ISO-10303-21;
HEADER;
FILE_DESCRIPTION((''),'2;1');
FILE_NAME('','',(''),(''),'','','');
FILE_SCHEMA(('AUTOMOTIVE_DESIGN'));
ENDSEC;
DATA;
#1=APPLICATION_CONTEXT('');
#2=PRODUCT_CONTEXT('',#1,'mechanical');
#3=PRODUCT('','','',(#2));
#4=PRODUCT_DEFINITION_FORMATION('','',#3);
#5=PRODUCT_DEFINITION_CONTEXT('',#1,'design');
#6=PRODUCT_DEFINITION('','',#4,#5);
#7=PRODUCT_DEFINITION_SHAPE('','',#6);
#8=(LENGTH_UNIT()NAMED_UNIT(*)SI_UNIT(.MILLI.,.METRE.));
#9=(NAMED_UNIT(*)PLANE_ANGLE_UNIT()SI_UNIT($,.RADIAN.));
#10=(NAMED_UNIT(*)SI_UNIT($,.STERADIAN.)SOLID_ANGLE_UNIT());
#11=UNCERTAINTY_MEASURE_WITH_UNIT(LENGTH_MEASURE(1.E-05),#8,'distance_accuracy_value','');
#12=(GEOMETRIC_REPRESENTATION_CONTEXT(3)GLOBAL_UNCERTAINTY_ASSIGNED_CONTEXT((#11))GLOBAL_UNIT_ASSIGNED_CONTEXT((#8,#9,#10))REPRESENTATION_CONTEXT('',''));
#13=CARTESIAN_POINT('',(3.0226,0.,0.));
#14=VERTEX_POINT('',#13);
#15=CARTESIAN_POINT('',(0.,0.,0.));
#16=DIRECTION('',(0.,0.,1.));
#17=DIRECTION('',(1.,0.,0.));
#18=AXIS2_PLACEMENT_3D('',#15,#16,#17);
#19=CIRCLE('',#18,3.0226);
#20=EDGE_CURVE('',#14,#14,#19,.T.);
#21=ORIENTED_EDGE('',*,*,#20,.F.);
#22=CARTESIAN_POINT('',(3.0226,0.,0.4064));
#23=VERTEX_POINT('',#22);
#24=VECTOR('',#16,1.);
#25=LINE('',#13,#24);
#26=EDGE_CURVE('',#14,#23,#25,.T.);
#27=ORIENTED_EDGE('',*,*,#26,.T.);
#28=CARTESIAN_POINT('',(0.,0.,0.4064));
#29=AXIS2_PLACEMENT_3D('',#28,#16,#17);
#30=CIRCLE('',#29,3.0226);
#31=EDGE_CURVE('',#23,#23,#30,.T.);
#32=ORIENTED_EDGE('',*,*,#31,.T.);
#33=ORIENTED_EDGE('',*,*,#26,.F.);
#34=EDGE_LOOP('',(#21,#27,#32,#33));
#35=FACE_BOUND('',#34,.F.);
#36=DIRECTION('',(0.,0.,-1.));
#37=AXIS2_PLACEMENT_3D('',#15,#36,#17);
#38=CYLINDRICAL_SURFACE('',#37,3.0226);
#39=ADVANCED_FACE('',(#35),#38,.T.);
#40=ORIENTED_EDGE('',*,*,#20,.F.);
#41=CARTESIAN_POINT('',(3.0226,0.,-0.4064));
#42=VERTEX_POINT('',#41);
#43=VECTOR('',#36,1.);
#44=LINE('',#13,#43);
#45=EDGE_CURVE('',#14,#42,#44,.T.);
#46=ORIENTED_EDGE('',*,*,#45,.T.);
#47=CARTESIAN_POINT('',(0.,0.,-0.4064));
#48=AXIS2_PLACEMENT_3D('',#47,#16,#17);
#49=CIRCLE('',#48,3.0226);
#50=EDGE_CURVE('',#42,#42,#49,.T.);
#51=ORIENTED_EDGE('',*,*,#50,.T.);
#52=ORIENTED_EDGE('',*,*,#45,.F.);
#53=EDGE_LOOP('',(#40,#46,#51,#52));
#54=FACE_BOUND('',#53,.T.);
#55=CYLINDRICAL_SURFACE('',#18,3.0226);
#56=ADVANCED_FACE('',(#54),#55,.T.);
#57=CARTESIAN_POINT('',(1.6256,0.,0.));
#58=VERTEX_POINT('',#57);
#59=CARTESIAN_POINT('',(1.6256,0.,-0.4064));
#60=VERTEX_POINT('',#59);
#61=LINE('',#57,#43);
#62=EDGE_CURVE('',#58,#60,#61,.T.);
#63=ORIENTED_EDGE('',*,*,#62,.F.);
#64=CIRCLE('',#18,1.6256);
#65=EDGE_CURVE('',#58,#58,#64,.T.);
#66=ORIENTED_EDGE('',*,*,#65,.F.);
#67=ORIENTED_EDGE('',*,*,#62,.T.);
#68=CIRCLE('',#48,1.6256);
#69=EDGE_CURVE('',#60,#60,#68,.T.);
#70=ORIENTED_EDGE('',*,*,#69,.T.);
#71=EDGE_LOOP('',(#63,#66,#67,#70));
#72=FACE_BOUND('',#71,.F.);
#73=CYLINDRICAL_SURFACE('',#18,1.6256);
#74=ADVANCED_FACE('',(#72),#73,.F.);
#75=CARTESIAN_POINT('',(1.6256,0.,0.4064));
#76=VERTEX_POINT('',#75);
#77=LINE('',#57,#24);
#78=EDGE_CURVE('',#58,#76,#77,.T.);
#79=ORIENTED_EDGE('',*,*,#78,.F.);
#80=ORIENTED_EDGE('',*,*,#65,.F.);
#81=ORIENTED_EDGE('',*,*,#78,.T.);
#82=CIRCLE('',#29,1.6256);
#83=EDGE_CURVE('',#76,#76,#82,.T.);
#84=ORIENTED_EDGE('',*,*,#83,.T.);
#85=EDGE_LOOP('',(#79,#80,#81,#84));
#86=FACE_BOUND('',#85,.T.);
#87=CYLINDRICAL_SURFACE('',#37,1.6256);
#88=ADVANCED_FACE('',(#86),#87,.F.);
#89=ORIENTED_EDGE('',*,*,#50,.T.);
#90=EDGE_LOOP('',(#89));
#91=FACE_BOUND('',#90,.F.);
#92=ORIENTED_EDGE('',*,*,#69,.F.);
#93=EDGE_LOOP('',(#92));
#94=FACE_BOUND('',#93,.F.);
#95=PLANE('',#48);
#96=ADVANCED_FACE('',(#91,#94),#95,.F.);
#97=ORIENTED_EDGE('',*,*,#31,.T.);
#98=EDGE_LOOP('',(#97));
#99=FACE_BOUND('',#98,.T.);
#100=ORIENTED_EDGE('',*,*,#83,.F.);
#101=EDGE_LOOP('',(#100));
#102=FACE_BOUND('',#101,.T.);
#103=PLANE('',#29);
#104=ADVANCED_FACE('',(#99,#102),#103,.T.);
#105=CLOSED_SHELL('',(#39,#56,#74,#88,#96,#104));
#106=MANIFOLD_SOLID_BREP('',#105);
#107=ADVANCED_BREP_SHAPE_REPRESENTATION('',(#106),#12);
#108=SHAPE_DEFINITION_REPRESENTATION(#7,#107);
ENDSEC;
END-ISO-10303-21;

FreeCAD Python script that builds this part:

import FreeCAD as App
import Part
import Sketcher

V = App.Vector
Q = App.Units.Quantity

doc = App.newDocument("Part")
body = doc.addObject("PartDesign::Body", "Body")

# Sketch on XY plane
sketch1 = doc.addObject("Sketcher::SketchObject", "Sketch")
body.addObject(sketch1)
sketch1.AttachmentSupport = (doc.XY_Plane, [""])
sketch1.MapMode = "FlatFace"
sketch1.addGeometry(Part.Circle(V(0, 0, 0), V(0, 0, 1), 3), False)
sketch1.addGeometry(Part.Circle(V(0, 0, 0), V(0, 0, 1), 1.6), False)
sketch1.addConstraint(Sketcher.Constraint("Coincident", 0, 3, -1, 1))
sketch1.addConstraint(Sketcher.Constraint("Coincident", 1, 3, -1, 1))
sketch1.addConstraint(Sketcher.Constraint("Diameter", 0, Q("0.238 in")))
sketch1.addConstraint(Sketcher.Constraint("Diameter", 1, Q("0.128 in")))
pad1 = doc.addObject("PartDesign::Pad", "Pad")
body.addObject(pad1)
pad1.Profile = sketch1
pad1.Length = Q("0.032 in")
pad1.Midplane = True

doc.recompute()
